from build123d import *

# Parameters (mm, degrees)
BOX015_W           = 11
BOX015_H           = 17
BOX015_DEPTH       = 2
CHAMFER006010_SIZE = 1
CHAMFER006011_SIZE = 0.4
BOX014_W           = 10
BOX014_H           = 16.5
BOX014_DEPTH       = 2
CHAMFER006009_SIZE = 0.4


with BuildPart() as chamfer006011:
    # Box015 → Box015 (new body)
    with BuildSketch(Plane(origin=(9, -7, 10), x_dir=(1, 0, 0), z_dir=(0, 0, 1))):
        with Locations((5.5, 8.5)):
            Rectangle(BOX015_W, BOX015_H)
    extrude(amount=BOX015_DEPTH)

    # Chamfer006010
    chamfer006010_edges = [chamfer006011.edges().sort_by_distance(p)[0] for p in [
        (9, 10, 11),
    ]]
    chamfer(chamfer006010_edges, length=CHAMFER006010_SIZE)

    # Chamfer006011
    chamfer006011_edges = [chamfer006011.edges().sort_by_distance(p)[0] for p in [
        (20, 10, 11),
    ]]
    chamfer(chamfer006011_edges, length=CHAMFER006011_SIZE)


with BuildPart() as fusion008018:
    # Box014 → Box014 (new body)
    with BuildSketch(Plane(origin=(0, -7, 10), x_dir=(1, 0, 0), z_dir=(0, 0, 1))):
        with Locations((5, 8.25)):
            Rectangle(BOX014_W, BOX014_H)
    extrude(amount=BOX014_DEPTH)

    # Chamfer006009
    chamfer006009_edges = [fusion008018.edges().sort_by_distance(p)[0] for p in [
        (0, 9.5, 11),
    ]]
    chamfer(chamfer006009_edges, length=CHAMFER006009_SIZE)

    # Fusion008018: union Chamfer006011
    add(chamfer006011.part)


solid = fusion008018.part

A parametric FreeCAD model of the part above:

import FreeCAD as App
import Part
import Sketcher
from FreeCAD import Vector


def edges_at(feature, points):
    """Names of the edges that pass closest to the given points."""
    edges = feature.Shape.Edges
    near = lambda p: min(range(len(edges)), key=lambda i: edges[i].distToShape(Part.Vertex(*p))[0])
    return sorted({f"Edge{near(p) + 1}" for p in points})


def add_polygon(sketch, points):
    """Adds a closed chain of lines whose ends are joined by coincident constraints."""
    first, n = sketch.GeometryCount, len(points)
    for a, b in zip(points, points[1:] + points[:1]):
        sketch.addGeometry(Part.LineSegment(App.Vector(*a, 0), App.Vector(*b, 0)), False)
    for i in range(n):
        sketch.addConstraint(Sketcher.Constraint("Coincident", first + i, 2, first + (i + 1) % n, 1))

doc = App.newDocument("Part")
body = doc.addObject("PartDesign::Body", "Body")

# Sketch on XY plane
sketch1 = body.newObject("Sketcher::SketchObject", "Sketch")
sketch1.AttachmentSupport = (doc.getObject("XY_Plane"), [""])
sketch1.MapMode = "FlatFace"
sketch1.AttachmentOffset = App.Placement(Vector(0, 0, 10), App.Rotation())
add_polygon(sketch1, [(9, 10), (9, -7), (20, -7), (20, 10)])  # lines 0-3
sketch1.addConstraint([
    Sketcher.Constraint("Vertical", 0),
    Sketcher.Constraint("Horizontal", 1),
    Sketcher.Constraint("Vertical", 2),
    Sketcher.Constraint("Horizontal", 3),
    Sketcher.Constraint("DistanceX", 1, 1, 1, 2, 11.0),
    Sketcher.Constraint("DistanceY", 0, 2, 0, 1, 17.0),
    Sketcher.Constraint("DistanceX", -1, 1, 0, 2, 9.0),
    Sketcher.Constraint("DistanceY", 0, 2, -1, 1, 7.0),
])
pad1 = body.newObject("PartDesign::Pad", "Pad")
pad1.Profile = sketch1
pad1.Length = 2
doc.recompute()

chamfer = body.newObject("PartDesign::Chamfer", "Chamfer")
chamfer.Base = (pad1, edges_at(pad1, [(9, 10, 11)]))
chamfer.Size = 1
doc.recompute()

chamfer2 = body.newObject("PartDesign::Chamfer", "Chamfer001")
chamfer2.Base = (chamfer, edges_at(chamfer, [(20, 10, 11)]))
chamfer2.Size = 0.4
body2 = doc.addObject("PartDesign::Body", "Body001")

# Sketch on XY plane
sketch2 = body2.newObject("Sketcher::SketchObject", "Sketch001")
sketch2.AttachmentSupport = (doc.getObject("XY_Plane001"), [""])
sketch2.MapMode = "FlatFace"
sketch2.AttachmentOffset = App.Placement(Vector(0, 0, 10), App.Rotation())
add_polygon(sketch2, [(0, 10), (0, -7), (10, -7), (10, 10)])  # lines 0-3
sketch2.addConstraint([
    Sketcher.Constraint("Vertical", 0),
    Sketcher.Constraint("Horizontal", 1),
    Sketcher.Constraint("Vertical", 2),
    Sketcher.Constraint("Horizontal", 3),
    Sketcher.Constraint("PointOnObject", 0, 2, -2),
    Sketcher.Constraint("DistanceX", 1, 1, 1, 2, 10.0),
    Sketcher.Constraint("DistanceY", 0, 2, 0, 1, 16.5),
    Sketcher.Constraint("DistanceY", 0, 2, -1, 1, 7.0),
])
pad2 = body2.newObject("PartDesign::Pad", "Pad001")
pad2.Profile = sketch2
pad2.Length = 2
doc.recompute()

chamfer3 = body2.newObject("PartDesign::Chamfer", "Chamfer002")
chamfer3.Base = (pad2, edges_at(pad2, [(0, 9.5, 11)]))
chamfer3.Size = 0.4
doc.recompute()

boolean = body2.newObject("PartDesign::Boolean", "Boolean")
boolean.Type = "Fuse"
boolean.addObjects([body])

doc.recompute()
